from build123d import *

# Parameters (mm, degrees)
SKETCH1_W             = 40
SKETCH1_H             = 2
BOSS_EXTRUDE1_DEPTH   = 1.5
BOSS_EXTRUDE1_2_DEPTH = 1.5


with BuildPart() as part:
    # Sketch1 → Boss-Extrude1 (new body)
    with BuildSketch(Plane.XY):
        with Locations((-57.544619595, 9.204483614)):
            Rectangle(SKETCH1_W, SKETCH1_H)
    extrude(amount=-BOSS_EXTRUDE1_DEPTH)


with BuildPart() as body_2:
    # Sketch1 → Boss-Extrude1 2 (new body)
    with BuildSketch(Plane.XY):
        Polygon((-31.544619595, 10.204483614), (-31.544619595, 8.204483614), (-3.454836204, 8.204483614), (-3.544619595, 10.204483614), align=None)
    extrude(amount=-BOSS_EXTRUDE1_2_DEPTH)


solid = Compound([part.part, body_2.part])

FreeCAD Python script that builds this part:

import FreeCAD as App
import Part
import Sketcher
from FreeCAD import Vector


def add_polygon(sketch, points):
    """Adds a closed chain of lines whose ends are joined by coincident constraints."""
    first, n = sketch.GeometryCount, len(points)
    for a, b in zip(points, points[1:] + points[:1]):
        sketch.addGeometry(Part.LineSegment(App.Vector(*a, 0), App.Vector(*b, 0)), False)
    for i in range(n):
        sketch.addConstraint(Sketcher.Constraint("Coincident", first + i, 2, first + (i + 1) % n, 1))

doc = App.newDocument("Part")
body = doc.addObject("PartDesign::Body", "Body")

# Sketch on XY plane
sketch1 = body.newObject("Sketcher::SketchObject", "Sketch")
sketch1.AttachmentSupport = (doc.getObject("XY_Plane"), [""])
sketch1.MapMode = "FlatFace"
add_polygon(sketch1, [(-77.5, 10.2), (-77.5, 8.2), (-37.5, 8.2), (-37.5, 10.2)])  # lines 0-3
sketch1.addConstraint(Sketcher.Constraint("Vertical", 0))
sketch1.addConstraint(Sketcher.Constraint("Horizontal", 1))
sketch1.addConstraint(Sketcher.Constraint("Vertical", 2))
sketch1.addConstraint(Sketcher.Constraint("Horizontal", 3))
sketch1.addConstraint(Sketcher.Constraint("DistanceX", 1, 1, 1, 2, 40.0))
sketch1.addConstraint(Sketcher.Constraint("DistanceY", 0, 2, 0, 1, 2.0))
sketch1.addConstraint(Sketcher.Constraint("DistanceX", 0, 2, -1, 1, 77.54462))
sketch1.addConstraint(Sketcher.Constraint("DistanceY", -1, 1, 0, 2, 8.204484))
pad1 = body.newObject("PartDesign::Pad", "Pad")
pad1.Profile = sketch1
pad1.Length = 1.5
pad1.Reversed = True
body2 = doc.addObject("PartDesign::Body", "Body001")

# Sketch on XY plane
sketch2 = body2.newObject("Sketcher::SketchObject", "Sketch001")
sketch2.AttachmentSupport = (doc.getObject("XY_Plane001"), [""])
sketch2.MapMode = "FlatFace"
add_polygon(sketch2, [(-31.5, 10.2), (-31.5, 8.2), (-3.5, 8.2), (-3.5, 10.2)])  # lines 0-3
sketch2.addConstraint(Sketcher.Constraint("Vertical", 0))
sketch2.addConstraint(Sketcher.Constraint("Horizontal", 1))
sketch2.addConstraint(Sketcher.Constraint("Horizontal", 3))
sketch2.addConstraint(Sketcher.Constraint("DistanceX", 3, 2, 3, 1, 28.0))
sketch2.addConstraint(Sketcher.Constraint("DistanceY", 0, 2, 0, 1, 2.0))
sketch2.addConstraint(Sketcher.Constraint("DistanceX", 1, 1, 1, 2, 28.089783))
sketch2.addConstraint(Sketcher.Constraint("DistanceX", 0, 2, -1, 1, 31.54462))
sketch2.addConstraint(Sketcher.Constraint("DistanceY", -1, 1, 0, 2, 8.204484))
pad2 = body2.newObject("PartDesign::Pad", "Pad001")
pad2.Profile = sketch2
pad2.Length = 1.5
pad2.Reversed = True

doc.recompute()
